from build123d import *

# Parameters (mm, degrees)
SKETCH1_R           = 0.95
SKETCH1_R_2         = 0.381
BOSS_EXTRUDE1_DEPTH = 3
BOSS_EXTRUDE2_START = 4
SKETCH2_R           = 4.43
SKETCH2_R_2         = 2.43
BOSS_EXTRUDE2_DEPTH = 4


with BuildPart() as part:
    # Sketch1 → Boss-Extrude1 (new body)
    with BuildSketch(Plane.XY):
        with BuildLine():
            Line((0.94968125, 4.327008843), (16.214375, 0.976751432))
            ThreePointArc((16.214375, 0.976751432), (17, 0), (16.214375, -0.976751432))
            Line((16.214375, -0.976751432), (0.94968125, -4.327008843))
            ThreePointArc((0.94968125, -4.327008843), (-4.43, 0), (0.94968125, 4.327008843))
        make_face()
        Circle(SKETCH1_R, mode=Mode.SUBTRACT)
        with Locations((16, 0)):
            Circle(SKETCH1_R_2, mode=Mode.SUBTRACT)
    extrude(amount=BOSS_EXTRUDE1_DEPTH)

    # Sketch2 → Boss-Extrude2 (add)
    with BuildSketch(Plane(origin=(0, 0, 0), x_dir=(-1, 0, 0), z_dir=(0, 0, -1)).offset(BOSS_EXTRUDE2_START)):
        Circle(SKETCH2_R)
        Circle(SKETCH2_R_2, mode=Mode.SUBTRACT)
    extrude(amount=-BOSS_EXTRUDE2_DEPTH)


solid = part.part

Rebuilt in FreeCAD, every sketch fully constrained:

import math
import FreeCAD as App
import Part
import Sketcher
from FreeCAD import Vector
Q = App.Units.Quantity

doc = App.newDocument("Part")
body = doc.addObject("PartDesign::Body", "Body")

# Sketch on XY plane
sketch1 = body.newObject("Sketcher::SketchObject", "Sketch")
sketch1.AttachmentSupport = (doc.getObject("XY_Plane"), [""])
sketch1.MapMode = "FlatFace"
sketch1.addGeometry(Part.LineSegment(Vector(16.214375, 0.976751, 0), Vector(0.949681, 4.327009, 0)), False)
sketch1.addGeometry(Part.ArcOfCircle(Part.Circle(Vector(0, 0, 0), Vector(0, 0, 1), 4.43), math.radians(77.621137), math.radians(282.378863)), False)
sketch1.addGeometry(Part.LineSegment(Vector(0.949681, -4.327009, 0), Vector(16.214375, -0.976751, 0)), False)
sketch1.addGeometry(Part.ArcOfCircle(Part.Circle(Vector(16, 0, 0), Vector(0, 0, 1), 1), math.radians(-77.621137), math.radians(77.621137)), False)
sketch1.addGeometry(Part.Circle(Vector(16, 0, 0), Vector(0, 0, 1), 0.381), False)
sketch1.addGeometry(Part.Circle(Vector(0, 0, 0), Vector(0, 0, 1), 0.95), False)
sketch1.addConstraint(Sketcher.Constraint("Tangent", 0, 2, 1, 1))
sketch1.addConstraint(Sketcher.Constraint("Tangent", 1, 2, 2, 1))
sketch1.addConstraint(Sketcher.Constraint("Tangent", 2, 2, 3, 1))
sketch1.addConstraint(Sketcher.Constraint("Tangent", 3, 2, 0, 1))
sketch1.addConstraint(Sketcher.Constraint("Coincident", 1, 3, -1, 1))
sketch1.addConstraint(Sketcher.Constraint("Coincident", 5, 3, -1, 1))
sketch1.addConstraint(Sketcher.Constraint("Coincident", 4, 3, 3, 3))
sketch1.addConstraint(Sketcher.Constraint("PointOnObject", 3, 3, -1))
sketch1.addConstraint(Sketcher.Constraint("Radius", 3, Q("1 mm")))
sketch1.addConstraint(Sketcher.Constraint("Diameter", 5, Q("1.9 mm")))
sketch1.addConstraint(Sketcher.Constraint("Radius", 1, Q("4.43 mm")))
sketch1.addConstraint(Sketcher.Constraint("Diameter", 4, Q("0.762 mm")))
sketch1.addConstraint(Sketcher.Constraint("DistanceX", -1, 1, 3, 3, Q("16 mm")))
pad1 = body.newObject("PartDesign::Pad", "Pad")
pad1.Profile = sketch1
pad1.Length = 3

# Sketch on XY plane
sketch2 = body.newObject("Sketcher::SketchObject", "Sketch001")
sketch2.AttachmentSupport = (doc.getObject("XY_Plane"), [""])
sketch2.MapMode = "FlatFace"
sketch2.AttachmentOffset = App.Placement(Vector(0, 0, -4), App.Rotation())
sketch2.addGeometry(Part.Circle(Vector(0, 0, 0), Vector(0, 0, 1), 4.43), False)
sketch2.addGeometry(Part.Circle(Vector(0, 0, 0), Vector(0, 0, 1), 2.43), False)
sketch2.addConstraint(Sketcher.Constraint("Coincident", 0, 3, -1, 1))
sketch2.addConstraint(Sketcher.Constraint("Coincident", 1, 3, -1, 1))
sketch2.addConstraint(Sketcher.Constraint("Diameter", 0, Q("8.86 mm")))
sketch2.addConstraint(Sketcher.Constraint("Diameter", 1, Q("4.86 mm")))
pad2 = body.newObject("PartDesign::Pad", "Pad001")
pad2.Profile = sketch2
pad2.Length = 4

doc.recompute()
